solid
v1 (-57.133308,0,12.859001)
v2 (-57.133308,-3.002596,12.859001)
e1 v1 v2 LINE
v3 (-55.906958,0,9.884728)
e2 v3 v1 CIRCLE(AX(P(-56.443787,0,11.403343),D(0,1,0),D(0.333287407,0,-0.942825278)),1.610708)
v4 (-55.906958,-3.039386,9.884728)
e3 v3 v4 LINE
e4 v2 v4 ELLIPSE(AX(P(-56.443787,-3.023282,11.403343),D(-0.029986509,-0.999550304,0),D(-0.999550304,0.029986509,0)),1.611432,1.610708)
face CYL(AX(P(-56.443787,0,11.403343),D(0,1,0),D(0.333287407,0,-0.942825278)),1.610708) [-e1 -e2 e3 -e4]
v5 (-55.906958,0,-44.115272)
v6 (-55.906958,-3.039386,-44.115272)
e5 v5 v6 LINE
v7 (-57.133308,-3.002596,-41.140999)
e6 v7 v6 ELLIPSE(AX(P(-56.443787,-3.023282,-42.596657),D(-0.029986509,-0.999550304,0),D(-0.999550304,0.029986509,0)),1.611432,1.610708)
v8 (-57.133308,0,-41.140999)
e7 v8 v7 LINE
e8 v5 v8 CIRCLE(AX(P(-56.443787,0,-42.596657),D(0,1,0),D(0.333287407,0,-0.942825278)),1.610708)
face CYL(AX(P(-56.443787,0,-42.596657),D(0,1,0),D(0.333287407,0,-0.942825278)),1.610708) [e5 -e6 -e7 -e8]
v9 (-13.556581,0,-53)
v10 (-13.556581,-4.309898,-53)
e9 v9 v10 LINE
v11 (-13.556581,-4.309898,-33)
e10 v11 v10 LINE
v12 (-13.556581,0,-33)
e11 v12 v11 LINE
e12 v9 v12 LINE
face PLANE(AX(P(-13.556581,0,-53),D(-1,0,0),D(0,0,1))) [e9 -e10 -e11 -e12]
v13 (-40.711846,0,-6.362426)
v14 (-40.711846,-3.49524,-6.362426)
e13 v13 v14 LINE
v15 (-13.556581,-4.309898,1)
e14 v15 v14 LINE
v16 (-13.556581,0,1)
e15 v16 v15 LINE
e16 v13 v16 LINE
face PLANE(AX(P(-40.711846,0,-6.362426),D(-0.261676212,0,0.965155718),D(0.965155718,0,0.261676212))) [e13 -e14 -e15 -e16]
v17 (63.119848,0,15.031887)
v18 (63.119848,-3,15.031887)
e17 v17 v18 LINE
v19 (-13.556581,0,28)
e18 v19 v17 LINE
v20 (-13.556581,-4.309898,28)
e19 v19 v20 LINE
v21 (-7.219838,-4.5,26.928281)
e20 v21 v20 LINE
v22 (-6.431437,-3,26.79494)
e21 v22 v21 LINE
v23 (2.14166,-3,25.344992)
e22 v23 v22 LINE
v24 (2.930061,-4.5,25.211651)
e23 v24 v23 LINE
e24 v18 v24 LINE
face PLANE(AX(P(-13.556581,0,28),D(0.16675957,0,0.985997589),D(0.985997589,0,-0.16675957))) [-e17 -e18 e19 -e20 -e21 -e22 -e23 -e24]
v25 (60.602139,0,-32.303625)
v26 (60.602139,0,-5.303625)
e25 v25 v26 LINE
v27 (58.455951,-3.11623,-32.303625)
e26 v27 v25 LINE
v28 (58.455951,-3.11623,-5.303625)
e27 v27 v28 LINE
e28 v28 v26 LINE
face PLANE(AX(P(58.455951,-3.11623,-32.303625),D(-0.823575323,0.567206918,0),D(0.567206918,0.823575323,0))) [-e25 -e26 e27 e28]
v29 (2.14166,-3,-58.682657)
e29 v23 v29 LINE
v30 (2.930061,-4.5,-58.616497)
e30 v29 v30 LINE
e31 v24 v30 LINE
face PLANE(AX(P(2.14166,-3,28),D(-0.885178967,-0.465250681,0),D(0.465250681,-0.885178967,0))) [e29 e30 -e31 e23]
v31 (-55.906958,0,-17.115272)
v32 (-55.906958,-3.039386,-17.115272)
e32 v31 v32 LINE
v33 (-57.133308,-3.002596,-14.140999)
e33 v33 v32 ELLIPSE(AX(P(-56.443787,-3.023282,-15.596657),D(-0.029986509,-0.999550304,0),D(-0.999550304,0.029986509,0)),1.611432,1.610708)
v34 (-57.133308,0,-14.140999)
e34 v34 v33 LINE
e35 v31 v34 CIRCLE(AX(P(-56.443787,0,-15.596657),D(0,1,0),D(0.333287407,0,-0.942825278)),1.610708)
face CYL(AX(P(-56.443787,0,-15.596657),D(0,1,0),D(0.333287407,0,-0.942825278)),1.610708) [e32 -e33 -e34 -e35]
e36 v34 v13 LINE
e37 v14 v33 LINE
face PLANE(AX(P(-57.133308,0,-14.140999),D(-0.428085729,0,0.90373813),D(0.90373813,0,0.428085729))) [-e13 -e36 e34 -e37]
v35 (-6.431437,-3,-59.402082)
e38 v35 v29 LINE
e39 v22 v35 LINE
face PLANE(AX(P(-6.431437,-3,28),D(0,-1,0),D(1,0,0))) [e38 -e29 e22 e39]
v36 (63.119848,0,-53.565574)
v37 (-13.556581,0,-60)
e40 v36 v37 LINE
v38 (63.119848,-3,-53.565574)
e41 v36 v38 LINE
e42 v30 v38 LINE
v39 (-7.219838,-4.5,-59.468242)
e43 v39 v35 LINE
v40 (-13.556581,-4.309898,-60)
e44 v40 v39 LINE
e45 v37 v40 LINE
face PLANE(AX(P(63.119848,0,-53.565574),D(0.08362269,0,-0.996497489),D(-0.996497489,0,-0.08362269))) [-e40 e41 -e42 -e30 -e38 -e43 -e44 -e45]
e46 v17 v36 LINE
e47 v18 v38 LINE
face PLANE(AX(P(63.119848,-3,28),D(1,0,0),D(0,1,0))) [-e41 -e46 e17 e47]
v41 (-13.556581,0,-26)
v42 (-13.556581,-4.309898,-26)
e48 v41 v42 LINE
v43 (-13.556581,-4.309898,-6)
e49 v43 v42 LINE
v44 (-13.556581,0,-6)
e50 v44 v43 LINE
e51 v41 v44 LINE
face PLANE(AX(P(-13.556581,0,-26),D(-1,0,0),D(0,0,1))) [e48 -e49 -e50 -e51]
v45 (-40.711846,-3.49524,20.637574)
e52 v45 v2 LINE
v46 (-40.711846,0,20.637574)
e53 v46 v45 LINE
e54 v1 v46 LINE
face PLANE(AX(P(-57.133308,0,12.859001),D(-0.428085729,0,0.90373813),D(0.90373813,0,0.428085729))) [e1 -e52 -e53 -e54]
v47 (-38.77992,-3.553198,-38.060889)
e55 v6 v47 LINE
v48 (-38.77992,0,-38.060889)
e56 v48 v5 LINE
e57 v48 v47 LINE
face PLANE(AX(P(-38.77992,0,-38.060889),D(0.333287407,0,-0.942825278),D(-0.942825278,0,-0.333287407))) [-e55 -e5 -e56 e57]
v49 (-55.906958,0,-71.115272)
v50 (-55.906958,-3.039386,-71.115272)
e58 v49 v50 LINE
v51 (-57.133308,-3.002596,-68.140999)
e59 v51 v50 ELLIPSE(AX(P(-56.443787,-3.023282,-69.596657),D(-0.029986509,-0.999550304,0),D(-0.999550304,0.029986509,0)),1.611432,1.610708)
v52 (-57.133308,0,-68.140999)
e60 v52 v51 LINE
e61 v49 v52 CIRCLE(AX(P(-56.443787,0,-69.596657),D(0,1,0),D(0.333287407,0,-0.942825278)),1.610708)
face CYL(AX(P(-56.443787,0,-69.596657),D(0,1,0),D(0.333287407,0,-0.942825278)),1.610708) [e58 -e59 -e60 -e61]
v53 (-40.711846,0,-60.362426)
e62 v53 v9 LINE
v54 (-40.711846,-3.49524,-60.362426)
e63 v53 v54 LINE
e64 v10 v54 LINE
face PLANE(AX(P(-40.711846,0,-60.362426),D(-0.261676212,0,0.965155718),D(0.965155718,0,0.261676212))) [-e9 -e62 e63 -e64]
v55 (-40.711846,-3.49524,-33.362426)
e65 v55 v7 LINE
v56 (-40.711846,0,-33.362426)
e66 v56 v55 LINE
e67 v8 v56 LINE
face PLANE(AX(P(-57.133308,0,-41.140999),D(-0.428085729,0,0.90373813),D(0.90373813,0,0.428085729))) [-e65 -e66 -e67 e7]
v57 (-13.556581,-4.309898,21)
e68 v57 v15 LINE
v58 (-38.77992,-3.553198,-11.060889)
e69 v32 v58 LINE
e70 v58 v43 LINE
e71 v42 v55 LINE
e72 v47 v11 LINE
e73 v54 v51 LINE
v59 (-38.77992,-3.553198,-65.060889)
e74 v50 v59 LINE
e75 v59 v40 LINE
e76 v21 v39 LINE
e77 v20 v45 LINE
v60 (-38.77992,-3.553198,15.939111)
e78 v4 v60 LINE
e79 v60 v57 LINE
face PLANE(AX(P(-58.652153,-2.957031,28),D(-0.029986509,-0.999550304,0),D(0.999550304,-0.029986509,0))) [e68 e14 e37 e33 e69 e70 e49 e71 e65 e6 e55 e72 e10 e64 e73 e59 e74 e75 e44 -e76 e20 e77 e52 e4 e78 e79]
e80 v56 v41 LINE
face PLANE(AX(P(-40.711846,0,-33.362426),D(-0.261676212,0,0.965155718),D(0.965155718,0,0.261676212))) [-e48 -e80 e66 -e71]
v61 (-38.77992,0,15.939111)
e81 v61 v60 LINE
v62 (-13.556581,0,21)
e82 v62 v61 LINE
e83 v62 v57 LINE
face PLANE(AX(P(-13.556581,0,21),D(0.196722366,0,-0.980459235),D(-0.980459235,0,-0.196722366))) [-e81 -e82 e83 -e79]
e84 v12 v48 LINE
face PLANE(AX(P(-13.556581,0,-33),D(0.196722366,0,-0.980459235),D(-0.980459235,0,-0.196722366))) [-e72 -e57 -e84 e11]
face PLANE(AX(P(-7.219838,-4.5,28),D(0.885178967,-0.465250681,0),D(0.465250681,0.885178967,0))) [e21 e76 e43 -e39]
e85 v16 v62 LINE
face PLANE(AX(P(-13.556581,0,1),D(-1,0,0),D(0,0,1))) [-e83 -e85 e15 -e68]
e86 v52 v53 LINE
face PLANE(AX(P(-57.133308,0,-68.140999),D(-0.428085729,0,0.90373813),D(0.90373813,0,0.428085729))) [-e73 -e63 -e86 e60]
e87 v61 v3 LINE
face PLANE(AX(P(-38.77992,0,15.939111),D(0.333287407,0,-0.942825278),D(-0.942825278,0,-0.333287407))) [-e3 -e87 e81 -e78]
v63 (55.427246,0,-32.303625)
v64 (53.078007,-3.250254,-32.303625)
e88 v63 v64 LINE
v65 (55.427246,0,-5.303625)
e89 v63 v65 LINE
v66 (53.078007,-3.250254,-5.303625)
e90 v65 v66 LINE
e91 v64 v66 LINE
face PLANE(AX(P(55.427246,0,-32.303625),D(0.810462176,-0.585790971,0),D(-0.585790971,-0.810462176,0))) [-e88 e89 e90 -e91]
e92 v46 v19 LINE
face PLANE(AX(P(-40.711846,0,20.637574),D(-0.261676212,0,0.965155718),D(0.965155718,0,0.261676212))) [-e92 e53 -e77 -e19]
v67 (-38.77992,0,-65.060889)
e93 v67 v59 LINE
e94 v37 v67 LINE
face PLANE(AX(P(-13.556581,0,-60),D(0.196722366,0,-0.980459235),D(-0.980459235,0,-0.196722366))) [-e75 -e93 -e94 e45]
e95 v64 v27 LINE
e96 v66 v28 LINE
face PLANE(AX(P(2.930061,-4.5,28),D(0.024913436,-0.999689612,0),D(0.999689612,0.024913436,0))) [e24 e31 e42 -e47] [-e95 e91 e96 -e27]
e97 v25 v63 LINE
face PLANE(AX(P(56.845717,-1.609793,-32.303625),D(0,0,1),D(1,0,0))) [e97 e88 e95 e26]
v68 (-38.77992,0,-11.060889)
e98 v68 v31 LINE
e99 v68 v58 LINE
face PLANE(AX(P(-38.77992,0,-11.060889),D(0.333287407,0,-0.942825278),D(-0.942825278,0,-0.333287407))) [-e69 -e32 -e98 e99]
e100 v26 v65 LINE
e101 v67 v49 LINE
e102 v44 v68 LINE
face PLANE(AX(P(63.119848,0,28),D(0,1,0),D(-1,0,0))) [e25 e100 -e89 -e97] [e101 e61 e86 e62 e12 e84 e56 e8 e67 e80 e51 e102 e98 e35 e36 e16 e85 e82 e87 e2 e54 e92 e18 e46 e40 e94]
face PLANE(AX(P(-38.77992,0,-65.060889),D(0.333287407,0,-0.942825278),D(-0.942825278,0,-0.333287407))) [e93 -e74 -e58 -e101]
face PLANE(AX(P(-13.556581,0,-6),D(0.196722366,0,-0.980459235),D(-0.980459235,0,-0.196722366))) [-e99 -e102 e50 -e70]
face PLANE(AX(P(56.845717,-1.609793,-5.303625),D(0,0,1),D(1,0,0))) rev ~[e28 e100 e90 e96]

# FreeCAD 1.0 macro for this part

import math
import FreeCAD as App
import Part
import Sketcher

V = App.Vector
Q = App.Units.Quantity

doc = App.newDocument("Part")
body = doc.addObject("PartDesign::Body", "Body")

sketch1 = body.newObject("Sketcher::SketchObject", "Sketch")
sketch1.AttachmentSupport = (doc.getObject("XY_Plane"), [""])
sketch1.MapMode = "FlatFace"
sketch1.AttachmentOffset = App.Placement(V(0, 0, 28), App.Rotation())
sketch1.addGeometry(Part.LineSegment(V(-58.652153, -2.957031, 0), V(-7.219838, -4.5, 0)), False)
sketch1.addGeometry(Part.LineSegment(V(-7.219838, -4.5, 0), V(-6.431437, -3, 0)), False)
sketch1.addGeometry(Part.LineSegment(V(-6.431437, -3, 0), V(2.14166, -3, 0)), False)
sketch1.addGeometry(Part.LineSegment(V(2.14166, -3, 0), V(2.930061, -4.5, 0)), False)
sketch1.addGeometry(Part.LineSegment(V(2.930061, -4.5, 0), V(63.119848, -3, 0)), False)
sketch1.addGeometry(Part.LineSegment(V(63.119848, -3, 0), V(63.119848, 0, 0)), False)
sketch1.addGeometry(Part.LineSegment(V(63.119848, 0, 0), V(-58.652153, 0, 0)), False)
sketch1.addGeometry(Part.LineSegment(V(-58.652153, 0, 0), V(-58.652153, -2.957031, 0)), False)
sketch1.addConstraint(Sketcher.Constraint("Coincident", 0, 2, 1, 1))
sketch1.addConstraint(Sketcher.Constraint("Coincident", 1, 2, 2, 1))
sketch1.addConstraint(Sketcher.Constraint("Coincident", 2, 2, 3, 1))
sketch1.addConstraint(Sketcher.Constraint("Coincident", 3, 2, 4, 1))
sketch1.addConstraint(Sketcher.Constraint("Coincident", 4, 2, 5, 1))
sketch1.addConstraint(Sketcher.Constraint("Coincident", 5, 2, 6, 1))
sketch1.addConstraint(Sketcher.Constraint("Coincident", 6, 2, 7, 1))
sketch1.addConstraint(Sketcher.Constraint("Coincident", 7, 2, 0, 1))
sketch1.addConstraint(Sketcher.Constraint("Horizontal", 2))
sketch1.addConstraint(Sketcher.Constraint("Vertical", 5))
sketch1.addConstraint(Sketcher.Constraint("Horizontal", 6))
sketch1.addConstraint(Sketcher.Constraint("Vertical", 7))
sketch1.addConstraint(Sketcher.Constraint("PointOnObject", 5, 2, -1))
sketch1.addConstraint(Sketcher.Constraint("Horizontal", 0, 2, 3, 2))
sketch1.addConstraint(Sketcher.Constraint("Horizontal", 2, 2, 4, 2))
sketch1.addConstraint(Sketcher.Constraint("Equal", 1, 3))
sketch1.addConstraint(Sketcher.Constraint("DistanceY", 5, 1, 5, 2, Q("3 mm")))
sketch1.addConstraint(Sketcher.Constraint("DistanceY", 0, 2, -1, 1, Q("4.5 mm")))
sketch1.addConstraint(Sketcher.Constraint("DistanceX", 6, 2, 6, 1, Q("121.772 mm")))
sketch1.addConstraint(Sketcher.Constraint("DistanceY", 7, 2, 7, 1, Q("2.957031 mm")))
sketch1.addConstraint(Sketcher.Constraint("DistanceX", 0, 2, 1, 2, Q("0.788401 mm")))
sketch1.addConstraint(Sketcher.Constraint("DistanceX", 0, 2, 3, 2, Q("10.149899 mm")))
sketch1.addConstraint(Sketcher.Constraint("DistanceX", -1, 1, 2, 2, Q("2.14166 mm")))
sketch1.addConstraint(Sketcher.Constraint("DistanceX", 2, 2, 4, 2, Q("60.978188 mm")))
pad1 = body.newObject("PartDesign::Pad", "Pad")
pad1.Profile = sketch1
pad1.Length = 99.579374
pad1.Reversed = True

sketch2 = body.newObject("Sketcher::SketchObject", "Sketch001")
sketch2.AttachmentSupport = (doc.getObject("XZ_Plane"), [""])
sketch2.MapMode = "FlatFace"
sketch2.addGeometry(Part.LineSegment(V(-75.389, -88.316, 0), V(-75.389, 44.737, 0)), False)
sketch2.addGeometry(Part.LineSegment(V(-75.389, 44.737, 0), V(79.857, 44.737, 0)), False)
sketch2.addGeometry(Part.LineSegment(V(79.857, 44.737, 0), V(79.857, -88.316, 0)), False)
sketch2.addGeometry(Part.LineSegment(V(79.857, -88.316, 0), V(-75.389, -88.316, 0)), False)
sketch2.addGeometry(Part.LineSegment(V(-13.556581, 28, 0), V(-40.711846, 20.637574, 0)), False)
sketch2.addGeometry(Part.LineSegment(V(-40.711846, 20.637574, 0), V(-57.133308, 12.859001, 0)), False)
sketch2.addGeometry(Part.ArcOfCircle(Part.Circle(V(-56.443787, 11.403343, 0), V(0, 0, 1), 1.610708), math.radians(115.346137), math.radians(289.46843)), False)
sketch2.addGeometry(Part.LineSegment(V(-55.906958, 9.884728, 0), V(-38.77992, 15.939111, 0)), False)
sketch2.addGeometry(Part.LineSegment(V(-38.77992, 15.939111, 0), V(-13.556581, 21, 0)), False)
sketch2.addGeometry(Part.LineSegment(V(-13.556581, 21, 0), V(-13.556581, 1, 0)), False)
sketch2.addGeometry(Part.LineSegment(V(-13.556581, 1, 0), V(-40.711846, -6.362426, 0)), False)
sketch2.addGeometry(Part.LineSegment(V(-40.711846, -6.362426, 0), V(-57.133308, -14.140999, 0)), False)
sketch2.addGeometry(Part.ArcOfCircle(Part.Circle(V(-56.443787, -15.596657, 0), V(0, 0, 1), 1.610708), math.radians(115.346137), math.radians(289.46843)), False)
sketch2.addGeometry(Part.LineSegment(V(-55.906958, -17.115272, 0), V(-38.77992, -11.060889, 0)), False)
sketch2.addGeometry(Part.LineSegment(V(-38.77992, -11.060889, 0), V(-13.556581, -6, 0)), False)
sketch2.addGeometry(Part.LineSegment(V(-13.556581, -6, 0), V(-13.556581, -26, 0)), False)
sketch2.addGeometry(Part.LineSegment(V(-13.556581, -26, 0), V(-40.711846, -33.362426, 0)), False)
sketch2.addGeometry(Part.LineSegment(V(-40.711846, -33.362426, 0), V(-57.133308, -41.140999, 0)), False)
sketch2.addGeometry(Part.ArcOfCircle(Part.Circle(V(-56.443787, -42.596657, 0), V(0, 0, 1), 1.610708), math.radians(115.346137), math.radians(289.46843)), False)
sketch2.addGeometry(Part.LineSegment(V(-55.906958, -44.115272, 0), V(-38.77992, -38.060889, 0)), False)
sketch2.addGeometry(Part.LineSegment(V(-38.77992, -38.060889, 0), V(-13.556581, -33, 0)), False)
sketch2.addGeometry(Part.LineSegment(V(-13.556581, -33, 0), V(-13.556581, -53, 0)), False)
sketch2.addGeometry(Part.LineSegment(V(-13.556581, -53, 0), V(-40.711846, -60.362426, 0)), False)
sketch2.addGeometry(Part.LineSegment(V(-40.711846, -60.362426, 0), V(-57.133308, -68.140999, 0)), False)
sketch2.addGeometry(Part.ArcOfCircle(Part.Circle(V(-56.443787, -69.596657, 0), V(0, 0, 1), 1.610708), math.radians(115.346137), math.radians(289.46843)), False)
sketch2.addGeometry(Part.LineSegment(V(-55.906958, -71.115272, 0), V(-38.77992, -65.060889, 0)), False)
sketch2.addGeometry(Part.LineSegment(V(-38.77992, -65.060889, 0), V(-13.556581, -60, 0)), False)
sketch2.addGeometry(Part.LineSegment(V(-13.556581, -60, 0), V(63.119848, -53.565574, 0)), False)
sketch2.addGeometry(Part.LineSegment(V(63.119848, -53.565574, 0), V(63.119848, 15.031887, 0)), False)
sketch2.addGeometry(Part.LineSegment(V(63.119848, 15.031887, 0), V(-13.556581, 28, 0)), False)
sketch2.addConstraint(Sketcher.Constraint("Coincident", 0, 2, 1, 1))
sketch2.addConstraint(Sketcher.Constraint("Coincident", 1, 2, 2, 1))
sketch2.addConstraint(Sketcher.Constraint("Coincident", 2, 2, 3, 1))
sketch2.addConstraint(Sketcher.Constraint("Coincident", 3, 2, 0, 1))
sketch2.addConstraint(Sketcher.Constraint("Coincident", 4, 2, 5, 1))
sketch2.addConstraint(Sketcher.Constraint("Tangent", 5, 2, 6, 1))
sketch2.addConstraint(Sketcher.Constraint("Tangent", 6, 2, 7, 1))
sketch2.addConstraint(Sketcher.Constraint("Coincident", 7, 2, 8, 1))
sketch2.addConstraint(Sketcher.Constraint("Coincident", 8, 2, 9, 1))
sketch2.addConstraint(Sketcher.Constraint("Coincident", 9, 2, 10, 1))
sketch2.addConstraint(Sketcher.Constraint("Coincident", 10, 2, 11, 1))
sketch2.addConstraint(Sketcher.Constraint("Tangent", 11, 2, 12, 1))
sketch2.addConstraint(Sketcher.Constraint("Tangent", 12, 2, 13, 1))
sketch2.addConstraint(Sketcher.Constraint("Coincident", 13, 2, 14, 1))
sketch2.addConstraint(Sketcher.Constraint("Coincident", 14, 2, 15, 1))
sketch2.addConstraint(Sketcher.Constraint("Coincident", 15, 2, 16, 1))
sketch2.addConstraint(Sketcher.Constraint("Coincident", 16, 2, 17, 1))
sketch2.addConstraint(Sketcher.Constraint("Tangent", 17, 2, 18, 1))
sketch2.addConstraint(Sketcher.Constraint("Tangent", 18, 2, 19, 1))
sketch2.addConstraint(Sketcher.Constraint("Coincident", 19, 2, 20, 1))
sketch2.addConstraint(Sketcher.Constraint("Coincident", 20, 2, 21, 1))
sketch2.addConstraint(Sketcher.Constraint("Coincident", 21, 2, 22, 1))
sketch2.addConstraint(Sketcher.Constraint("Coincident", 22, 2, 23, 1))
sketch2.addConstraint(Sketcher.Constraint("Tangent", 23, 2, 24, 1))
sketch2.addConstraint(Sketcher.Constraint("Tangent", 24, 2, 25, 1))
sketch2.addConstraint(Sketcher.Constraint("Coincident", 25, 2, 26, 1))
sketch2.addConstraint(Sketcher.Constraint("Coincident", 26, 2, 27, 1))
sketch2.addConstraint(Sketcher.Constraint("Coincident", 27, 2, 28, 1))
sketch2.addConstraint(Sketcher.Constraint("Coincident", 28, 2, 29, 1))
sketch2.addConstraint(Sketcher.Constraint("Coincident", 29, 2, 4, 1))
sketch2.addConstraint(Sketcher.Constraint("Vertical", 0))
sketch2.addConstraint(Sketcher.Constraint("Horizontal", 1))
sketch2.addConstraint(Sketcher.Constraint("Vertical", 2))
sketch2.addConstraint(Sketcher.Constraint("Horizontal", 3))
sketch2.addConstraint(Sketcher.Constraint("Vertical", 9))
sketch2.addConstraint(Sketcher.Constraint("Vertical", 15))
sketch2.addConstraint(Sketcher.Constraint("Vertical", 21))
sketch2.addConstraint(Sketcher.Constraint("Vertical", 28))
sketch2.addConstraint(Sketcher.Constraint("Equal", 6, 12))
sketch2.addConstraint(Sketcher.Constraint("Equal", 12, 18))
sketch2.addConstraint(Sketcher.Constraint("Equal", 18, 24))
sketch2.addConstraint(Sketcher.Constraint("Parallel", 4, 10))
sketch2.addConstraint(Sketcher.Constraint("Parallel", 5, 11))
sketch2.addConstraint(Sketcher.Constraint("Parallel", 7, 13))
sketch2.addConstraint(Sketcher.Constraint("Parallel", 8, 14))
sketch2.addConstraint(Sketcher.Constraint("Parallel", 10, 16))
sketch2.addConstraint(Sketcher.Constraint("Parallel", 11, 17))
sketch2.addConstraint(Sketcher.Constraint("Parallel", 13, 19))
sketch2.addConstraint(Sketcher.Constraint("Parallel", 14, 20))
sketch2.addConstraint(Sketcher.Constraint("Parallel", 16, 22))
sketch2.addConstraint(Sketcher.Constraint("Parallel", 17, 23))
sketch2.addConstraint(Sketcher.Constraint("Parallel", 19, 25))
sketch2.addConstraint(Sketcher.Constraint("Parallel", 20, 26))
sketch2.addConstraint(Sketcher.Constraint("Vertical", 6, 3, 12, 3))
sketch2.addConstraint(Sketcher.Constraint("Vertical", 12, 3, 18, 3))
sketch2.addConstraint(Sketcher.Constraint("Vertical", 18, 3, 24, 3))
sketch2.addConstraint(Sketcher.Constraint("Vertical", 4, 2, 10, 2))
sketch2.addConstraint(Sketcher.Constraint("Vertical", 7, 2, 13, 2))
sketch2.addConstraint(Sketcher.Constraint("Vertical", 9, 2, 14, 2))
sketch2.addConstraint(Sketcher.Constraint("Vertical", 10, 2, 16, 2))
sketch2.addConstraint(Sketcher.Constraint("Vertical", 13, 2, 19, 2))
sketch2.addConstraint(Sketcher.Constraint("Vertical", 15, 2, 20, 2))
sketch2.addConstraint(Sketcher.Constraint("Vertical", 16, 2, 22, 2))
sketch2.addConstraint(Sketcher.Constraint("Vertical", 19, 2, 25, 2))
sketch2.addConstraint(Sketcher.Constraint("Vertical", 21, 2, 26, 2))
sketch2.addConstraint(Sketcher.Constraint("Vertical", 26, 2, 29, 2))
sketch2.addConstraint(Sketcher.Constraint("Equal", 9, 15))
sketch2.addConstraint(Sketcher.Constraint("Equal", 15, 21))
sketch2.addConstraint(Sketcher.Constraint("DistanceY", 9, 2, 9, 1, Q("20 mm")))
sketch2.addConstraint(Sketcher.Constraint("DistanceY", -1, 1, 8, 2, Q("21 mm")))
sketch2.addConstraint(Sketcher.Constraint("DistanceY", 14, 2, -1, 1, Q("6 mm")))
sketch2.addConstraint(Sketcher.Constraint("DistanceX", 1, 1, 1, 2, Q("155.246 mm")))
sketch2.addConstraint(Sketcher.Constraint("DistanceY", 0, 1, 0, 2, Q("133.053 mm")))
sketch2.addConstraint(Sketcher.Constraint("DistanceX", 0, 2, -1, 1, Q("75.389 mm")))
sketch2.addConstraint(Sketcher.Constraint("DistanceY", -1, 1, 0, 2, Q("44.737 mm")))
sketch2.addConstraint(Sketcher.Constraint("DistanceY", -1, 1, 5, 2, Q("12.859001 mm")))
sketch2.addConstraint(Sketcher.Constraint("Radius", 6, Q("1.610708 mm")))
sketch2.addConstraint(Sketcher.Constraint("DistanceY", 28, 1, 28, 2, Q("68.597461 mm")))
sketch2.addConstraint(Sketcher.Constraint("Distance", 4, Q("28.135632 mm")))
sketch2.addConstraint(Sketcher.Constraint("Distance", 29, Q("77.76533 mm")))
sketch2.addConstraint(Sketcher.Constraint("DistanceX", 6, 2, -1, 1, Q("55.906958 mm")))
sketch2.addConstraint(Sketcher.Constraint("DistanceX", 7, 2, -1, 1, Q("38.77992 mm")))
sketch2.addConstraint(Sketcher.Constraint("DistanceY", -1, 1, 7, 2, Q("15.939111 mm")))
sketch2.addConstraint(Sketcher.Constraint("DistanceX", 8, 2, -1, 1, Q("13.556581 mm")))
sketch2.addConstraint(Sketcher.Constraint("DistanceX", 6, 3, 4, 2, Q("15.73194 mm")))
sketch2.addConstraint(Sketcher.Constraint("DistanceX", 21, 2, 27, 2, Q("76.676428 mm")))
pocket1 = body.newObject("PartDesign::Pocket", "Pocket")
pocket1.Profile = sketch2
pocket1.Type = "ThroughAll"
pocket1.Reversed = True

sketch3 = body.newObject("Sketcher::SketchObject", "Sketch002")
sketch3.AttachmentSupport = (doc.getObject("XY_Plane"), [""])
sketch3.MapMode = "FlatFace"
sketch3.AttachmentOffset = App.Placement(V(0, 0, -32.303625), App.Rotation())
sketch3.addGeometry(Part.LineSegment(V(60.602139, 0, 0), V(55.427246, 0, 0)), False)
sketch3.addGeometry(Part.LineSegment(V(55.427246, 0, 0), V(53.078007, -3.250254, 0)), False)
sketch3.addGeometry(Part.LineSegment(V(53.078007, -3.250254, 0), V(58.455951, -3.11623, 0)), False)
sketch3.addGeometry(Part.LineSegment(V(58.455951, -3.11623, 0), V(60.602139, 0, 0)), False)
sketch3.addConstraint(Sketcher.Constraint("Coincident", 0, 2, 1, 1))
sketch3.addConstraint(Sketcher.Constraint("Coincident", 1, 2, 2, 1))
sketch3.addConstraint(Sketcher.Constraint("Coincident", 2, 2, 3, 1))
sketch3.addConstraint(Sketcher.Constraint("Coincident", 3, 2, 0, 1))
sketch3.addConstraint(Sketcher.Constraint("Horizontal", 0))
sketch3.addConstraint(Sketcher.Constraint("PointOnObject", 0, 2, -1))
sketch3.addConstraint(Sketcher.Constraint("Distance", 1, Q("4.010372 mm")))
sketch3.addConstraint(Sketcher.Constraint("DistanceX", 0, 2, 0, 1, Q("5.174893 mm")))
sketch3.addConstraint(Sketcher.Constraint("DistanceX", -1, 1, 2, 2, Q("58.455951 mm")))
sketch3.addConstraint(Sketcher.Constraint("DistanceY", 2, 2, -1, 1, Q("3.11623 mm")))
sketch3.addConstraint(Sketcher.Constraint("DistanceX", -1, 1, 3, 2, Q("60.602139 mm")))
sketch3.addConstraint(Sketcher.Constraint("DistanceX", 1, 2, 0, 2, Q("2.349239 mm")))
pocket2 = body.newObject("PartDesign::Pocket", "Pocket001")
pocket2.Profile = sketch3
pocket2.Length = 27
pocket2.Reversed = True

doc.recompute()
